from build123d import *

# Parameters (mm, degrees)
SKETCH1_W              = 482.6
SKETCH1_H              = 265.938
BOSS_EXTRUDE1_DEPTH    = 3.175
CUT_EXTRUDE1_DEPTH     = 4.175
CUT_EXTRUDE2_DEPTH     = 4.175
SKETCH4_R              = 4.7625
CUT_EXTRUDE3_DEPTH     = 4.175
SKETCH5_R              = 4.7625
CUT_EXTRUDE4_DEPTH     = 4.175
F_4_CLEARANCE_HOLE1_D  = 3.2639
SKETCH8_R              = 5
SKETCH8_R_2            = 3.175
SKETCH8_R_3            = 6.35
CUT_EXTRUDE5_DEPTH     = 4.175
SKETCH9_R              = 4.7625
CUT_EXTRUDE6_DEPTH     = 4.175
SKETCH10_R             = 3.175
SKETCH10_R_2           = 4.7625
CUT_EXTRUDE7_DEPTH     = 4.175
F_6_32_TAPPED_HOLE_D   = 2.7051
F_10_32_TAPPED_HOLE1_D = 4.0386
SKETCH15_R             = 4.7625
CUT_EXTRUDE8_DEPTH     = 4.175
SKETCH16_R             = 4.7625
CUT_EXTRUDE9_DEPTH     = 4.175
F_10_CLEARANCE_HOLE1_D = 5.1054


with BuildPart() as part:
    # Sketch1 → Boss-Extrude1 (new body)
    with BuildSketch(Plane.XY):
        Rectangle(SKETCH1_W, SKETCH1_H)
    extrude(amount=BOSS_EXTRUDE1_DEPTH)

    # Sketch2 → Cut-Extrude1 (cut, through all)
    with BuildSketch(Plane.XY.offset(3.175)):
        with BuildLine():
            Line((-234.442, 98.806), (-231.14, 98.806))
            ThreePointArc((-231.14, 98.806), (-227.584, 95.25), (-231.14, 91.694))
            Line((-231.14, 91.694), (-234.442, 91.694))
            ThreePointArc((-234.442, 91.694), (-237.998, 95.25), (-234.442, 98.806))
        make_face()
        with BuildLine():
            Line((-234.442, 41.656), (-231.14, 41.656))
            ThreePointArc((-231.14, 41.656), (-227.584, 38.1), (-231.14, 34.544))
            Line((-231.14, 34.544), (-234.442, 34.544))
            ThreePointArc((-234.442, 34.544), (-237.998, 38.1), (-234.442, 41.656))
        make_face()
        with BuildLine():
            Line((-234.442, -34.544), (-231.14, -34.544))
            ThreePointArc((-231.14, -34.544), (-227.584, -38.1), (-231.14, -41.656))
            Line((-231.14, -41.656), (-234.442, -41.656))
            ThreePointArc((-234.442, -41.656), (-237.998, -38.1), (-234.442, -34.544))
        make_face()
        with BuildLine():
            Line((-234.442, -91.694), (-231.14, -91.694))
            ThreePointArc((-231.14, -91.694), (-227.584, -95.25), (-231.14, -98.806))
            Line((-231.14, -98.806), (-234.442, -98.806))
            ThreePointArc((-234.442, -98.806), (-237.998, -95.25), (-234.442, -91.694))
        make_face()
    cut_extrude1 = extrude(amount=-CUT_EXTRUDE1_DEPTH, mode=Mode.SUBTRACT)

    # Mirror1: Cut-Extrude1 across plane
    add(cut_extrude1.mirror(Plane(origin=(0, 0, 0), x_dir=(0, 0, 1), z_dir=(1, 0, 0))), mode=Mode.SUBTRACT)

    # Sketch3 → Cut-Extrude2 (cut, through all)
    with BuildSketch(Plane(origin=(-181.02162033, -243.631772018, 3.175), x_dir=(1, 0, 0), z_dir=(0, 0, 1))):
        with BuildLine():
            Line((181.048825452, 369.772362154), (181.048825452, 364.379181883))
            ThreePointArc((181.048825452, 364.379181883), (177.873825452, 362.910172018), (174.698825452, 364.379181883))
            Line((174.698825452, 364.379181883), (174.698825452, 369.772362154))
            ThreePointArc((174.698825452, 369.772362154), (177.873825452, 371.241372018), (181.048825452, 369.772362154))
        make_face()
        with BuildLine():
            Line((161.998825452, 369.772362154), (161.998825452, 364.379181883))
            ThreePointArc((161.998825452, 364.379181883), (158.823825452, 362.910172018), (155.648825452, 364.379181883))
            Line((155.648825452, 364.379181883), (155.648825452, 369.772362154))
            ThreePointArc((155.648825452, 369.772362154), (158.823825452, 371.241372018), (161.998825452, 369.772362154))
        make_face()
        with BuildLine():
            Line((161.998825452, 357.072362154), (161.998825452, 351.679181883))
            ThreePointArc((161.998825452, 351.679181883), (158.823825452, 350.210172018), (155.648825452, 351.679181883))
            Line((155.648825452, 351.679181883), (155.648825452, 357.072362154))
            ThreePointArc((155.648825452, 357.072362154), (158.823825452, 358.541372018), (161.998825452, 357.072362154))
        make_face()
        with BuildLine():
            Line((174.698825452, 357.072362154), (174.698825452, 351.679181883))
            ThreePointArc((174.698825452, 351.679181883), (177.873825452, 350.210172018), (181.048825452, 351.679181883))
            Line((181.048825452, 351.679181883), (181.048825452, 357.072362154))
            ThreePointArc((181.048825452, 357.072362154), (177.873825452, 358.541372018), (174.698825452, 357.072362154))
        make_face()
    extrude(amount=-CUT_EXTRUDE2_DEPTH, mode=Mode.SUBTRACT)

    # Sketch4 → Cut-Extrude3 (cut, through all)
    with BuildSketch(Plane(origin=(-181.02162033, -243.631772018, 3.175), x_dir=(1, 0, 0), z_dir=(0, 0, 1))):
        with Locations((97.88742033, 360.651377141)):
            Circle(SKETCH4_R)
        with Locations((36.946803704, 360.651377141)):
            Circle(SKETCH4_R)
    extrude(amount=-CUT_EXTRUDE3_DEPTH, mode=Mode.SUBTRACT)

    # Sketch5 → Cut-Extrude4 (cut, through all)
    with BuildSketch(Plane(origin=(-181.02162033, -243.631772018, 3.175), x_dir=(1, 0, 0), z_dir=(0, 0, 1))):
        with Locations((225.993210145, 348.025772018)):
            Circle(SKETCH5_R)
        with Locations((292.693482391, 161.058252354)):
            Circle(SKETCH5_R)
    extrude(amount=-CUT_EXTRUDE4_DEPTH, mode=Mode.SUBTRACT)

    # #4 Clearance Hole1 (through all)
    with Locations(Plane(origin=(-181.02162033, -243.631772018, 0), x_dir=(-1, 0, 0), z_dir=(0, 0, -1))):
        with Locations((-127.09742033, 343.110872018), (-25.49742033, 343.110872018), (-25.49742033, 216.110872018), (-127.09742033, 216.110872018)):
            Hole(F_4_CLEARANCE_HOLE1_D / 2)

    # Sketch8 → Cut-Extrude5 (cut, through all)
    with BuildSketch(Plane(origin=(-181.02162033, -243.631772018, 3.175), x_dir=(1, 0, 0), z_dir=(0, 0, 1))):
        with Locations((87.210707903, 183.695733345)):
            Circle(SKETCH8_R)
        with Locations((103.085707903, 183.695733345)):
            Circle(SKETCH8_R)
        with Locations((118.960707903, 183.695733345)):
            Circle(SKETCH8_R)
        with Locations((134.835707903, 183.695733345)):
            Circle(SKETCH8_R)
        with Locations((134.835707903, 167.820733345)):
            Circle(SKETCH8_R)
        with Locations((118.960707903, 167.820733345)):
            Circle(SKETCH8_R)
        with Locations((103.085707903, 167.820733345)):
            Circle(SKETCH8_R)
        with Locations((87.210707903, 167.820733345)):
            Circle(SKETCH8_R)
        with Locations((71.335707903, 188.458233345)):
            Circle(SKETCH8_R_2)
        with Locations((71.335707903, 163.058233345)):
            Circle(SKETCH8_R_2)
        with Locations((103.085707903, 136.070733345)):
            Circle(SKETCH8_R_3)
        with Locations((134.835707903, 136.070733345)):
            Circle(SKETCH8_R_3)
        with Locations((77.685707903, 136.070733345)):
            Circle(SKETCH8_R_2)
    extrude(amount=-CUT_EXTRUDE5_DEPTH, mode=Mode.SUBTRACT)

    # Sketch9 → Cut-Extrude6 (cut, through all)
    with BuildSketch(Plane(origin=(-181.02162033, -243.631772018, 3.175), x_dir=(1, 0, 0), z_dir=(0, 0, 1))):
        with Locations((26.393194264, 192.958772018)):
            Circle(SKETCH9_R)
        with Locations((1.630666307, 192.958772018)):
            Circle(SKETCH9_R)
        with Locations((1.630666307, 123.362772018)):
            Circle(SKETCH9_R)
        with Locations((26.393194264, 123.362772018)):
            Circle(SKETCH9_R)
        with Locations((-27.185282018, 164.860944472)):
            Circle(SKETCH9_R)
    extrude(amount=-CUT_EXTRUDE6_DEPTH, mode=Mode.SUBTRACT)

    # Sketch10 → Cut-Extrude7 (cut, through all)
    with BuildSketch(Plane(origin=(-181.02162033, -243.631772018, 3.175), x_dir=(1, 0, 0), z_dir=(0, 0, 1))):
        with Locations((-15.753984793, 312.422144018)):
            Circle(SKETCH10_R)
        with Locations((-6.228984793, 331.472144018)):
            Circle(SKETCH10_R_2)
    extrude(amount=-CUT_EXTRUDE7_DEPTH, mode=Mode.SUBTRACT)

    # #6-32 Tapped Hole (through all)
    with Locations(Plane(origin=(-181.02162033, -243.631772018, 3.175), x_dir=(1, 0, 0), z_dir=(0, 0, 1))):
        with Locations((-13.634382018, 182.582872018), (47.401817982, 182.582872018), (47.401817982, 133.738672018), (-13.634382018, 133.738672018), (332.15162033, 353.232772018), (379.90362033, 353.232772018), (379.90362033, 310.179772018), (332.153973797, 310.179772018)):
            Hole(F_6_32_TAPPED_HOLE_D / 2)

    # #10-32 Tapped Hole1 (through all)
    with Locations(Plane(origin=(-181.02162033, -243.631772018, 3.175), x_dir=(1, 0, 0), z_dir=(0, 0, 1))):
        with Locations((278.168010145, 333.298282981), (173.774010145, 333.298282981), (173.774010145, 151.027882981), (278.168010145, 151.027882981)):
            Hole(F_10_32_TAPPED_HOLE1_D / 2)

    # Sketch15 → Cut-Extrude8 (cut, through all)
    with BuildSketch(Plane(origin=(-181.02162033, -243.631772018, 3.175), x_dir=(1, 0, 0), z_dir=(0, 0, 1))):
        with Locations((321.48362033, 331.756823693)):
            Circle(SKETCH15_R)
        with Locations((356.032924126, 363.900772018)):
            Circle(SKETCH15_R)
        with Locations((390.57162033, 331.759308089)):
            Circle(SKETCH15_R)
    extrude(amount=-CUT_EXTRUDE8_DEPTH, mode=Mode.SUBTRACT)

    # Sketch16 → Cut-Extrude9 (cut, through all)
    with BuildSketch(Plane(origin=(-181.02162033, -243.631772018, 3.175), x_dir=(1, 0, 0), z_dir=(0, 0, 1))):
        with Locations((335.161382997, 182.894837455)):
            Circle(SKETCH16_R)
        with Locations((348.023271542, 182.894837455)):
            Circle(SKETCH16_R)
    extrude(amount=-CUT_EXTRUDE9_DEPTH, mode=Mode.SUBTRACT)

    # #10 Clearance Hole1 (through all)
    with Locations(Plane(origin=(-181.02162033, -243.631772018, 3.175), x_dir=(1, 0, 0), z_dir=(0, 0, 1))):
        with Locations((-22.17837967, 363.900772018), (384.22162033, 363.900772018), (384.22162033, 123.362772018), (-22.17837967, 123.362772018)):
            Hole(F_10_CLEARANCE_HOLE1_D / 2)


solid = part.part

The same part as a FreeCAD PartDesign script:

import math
import FreeCAD as App
import Part
import Sketcher

V = App.Vector
Q = App.Units.Quantity

doc = App.newDocument("Part")
params = doc.addObject("Spreadsheet::Sheet", "Params")
for row, (alias, value) in enumerate([
    ("sketch1_width", "19 in"),
    ("sketch1_height", "10.47 in"),
    ("pad1_length", "0.125 in"),
    ("sketch2_radius", "0.14 in"),
    ("sketch2_width", "0.13 in"),
    ("sketch3_radius", "0.164 in"),
    ("sketch4_diameter", "0.375 in"),
    ("sketch5_diameter", "0.375 in"),
    ("hole_diameter", "0.1285 in"),
    ("sketch7_diameter", "0.5 in"),
    ("sketch7_diameter2", "0.25 in"),
    ("sketch8_diameter", "0.375 in"),
    ("sketch9_diameter", "0.25 in"),
    ("sketch9_diameter2", "0.375 in"),
    ("hole2_diameter", "0.1065 in"),
    ("sketch11_diameter", "0.159 in"),
    ("hole3_diameter", "0.159 in"),
    ("sketch12_diameter", "0.375 in"),
    ("sketch13_diameter", "0.375 in"),
    ("sketch14_diameter", "0.201 in"),
    ("hole4_diameter", "0.201 in"),
], start=1):
    params.set(f"A{row}", alias)
    params.set(f"B{row}", "=" + value)
    params.setAlias(f"B{row}", alias)

body = doc.addObject("PartDesign::Body", "Body")

# Sketch on XY plane
sketch1 = body.newObject("Sketcher::SketchObject", "Sketch")
sketch1.AttachmentSupport = (doc.getObject("XY_Plane"), [""])
sketch1.MapMode = "FlatFace"
sketch1.addGeometry([
    Part.LineSegment(V(-241, 133, 0), V(-241, -133, 0)),
    Part.LineSegment(V(-241, -133, 0), V(241, -133, 0)),
    Part.LineSegment(V(241, -133, 0), V(241, 133, 0)),
    Part.LineSegment(V(241, 133, 0), V(-241, 133, 0)),
], False)
sketch1.addConstraint([
    Sketcher.Constraint("Coincident", 0, 2, 1, 1),
    Sketcher.Constraint("Coincident", 1, 2, 2, 1),
    Sketcher.Constraint("Coincident", 2, 2, 3, 1),
    Sketcher.Constraint("Coincident", 3, 2, 0, 1),
    Sketcher.Constraint("Vertical", 0),
    Sketcher.Constraint("Horizontal", 1),
    Sketcher.Constraint("Vertical", 2),
    Sketcher.Constraint("Horizontal", 3),
    Sketcher.Constraint("Symmetric", 0, 2, 2, 2, -1, 1),
    Sketcher.Constraint("DistanceX", 1, 1, 1, 2, Q("19 in")),
    Sketcher.Constraint("DistanceY", 0, 2, 0, 1, Q("10.47 in")),
])
sketch1.setExpression("Constraints[9]", "Params.sketch1_width")
sketch1.setExpression("Constraints[10]", "Params.sketch1_height")
pad1 = body.newObject("PartDesign::Pad", "Pad")
pad1.Profile = sketch1
pad1.setExpression("Length", "Params.pad1_length")

# Sketch on XY plane
sketch2 = body.newObject("Sketcher::SketchObject", "Sketch001")
sketch2.AttachmentSupport = (doc.getObject("XY_Plane"), [""])
sketch2.MapMode = "FlatFace"
sketch2.AttachmentOffset = App.Placement(V(0, 0, 0.125 * 25.4), App.Rotation())
sketch2.addGeometry([
    Part.LineSegment(V(-231.1, 98.8, 0), V(-234.4, 98.8, 0)),  # 0
    Part.ArcOfCircle(Part.Circle(V(-234.4, 95.2, 0), V(0, 0, 1), 3.6), math.radians(90), math.radians(270)),  # 1
    Part.LineSegment(V(-234.4, 91.7, 0), V(-231.1, 91.7, 0)),  # 2
    Part.ArcOfCircle(Part.Circle(V(-231.1, 95.2, 0), V(0, 0, 1), 3.6), math.radians(-90), math.radians(90)),  # 3
    Part.LineSegment(V(-231.1, 41.7, 0), V(-234.4, 41.7, 0)),  # 4
    Part.ArcOfCircle(Part.Circle(V(-234.4, 38.1, 0), V(0, 0, 1), 3.6), math.radians(90), math.radians(270)),  # 5
    Part.LineSegment(V(-234.4, 34.5, 0), V(-231.1, 34.5, 0)),  # 6
    Part.ArcOfCircle(Part.Circle(V(-231.1, 38.1, 0), V(0, 0, 1), 3.6), math.radians(-90), math.radians(90)),  # 7
    Part.LineSegment(V(-231.1, -34.5, 0), V(-234.4, -34.5, 0)),  # 8
    Part.ArcOfCircle(Part.Circle(V(-234.4, -38.1, 0), V(0, 0, 1), 3.6), math.radians(90), math.radians(270)),  # 9
    Part.LineSegment(V(-234.4, -41.7, 0), V(-231.1, -41.7, 0)),  # 10
    Part.ArcOfCircle(Part.Circle(V(-231.1, -38.1, 0), V(0, 0, 1), 3.6), math.radians(-90), math.radians(90)),  # 11
    Part.LineSegment(V(-231.1, -91.7, 0), V(-234.4, -91.7, 0)),  # 12
    Part.ArcOfCircle(Part.Circle(V(-234.4, -95.2, 0), V(0, 0, 1), 3.6), math.radians(90), math.radians(270)),  # 13
    Part.LineSegment(V(-234.4, -98.8, 0), V(-231.1, -98.8, 0)),  # 14
    Part.ArcOfCircle(Part.Circle(V(-231.1, -95.2, 0), V(0, 0, 1), 3.6), math.radians(-90), math.radians(90)),  # 15
], False)
sketch2.addConstraint([
    Sketcher.Constraint("Tangent", 0, 2, 1, 1),
    Sketcher.Constraint("Tangent", 1, 2, 2, 1),
    Sketcher.Constraint("Tangent", 2, 2, 3, 1),
    Sketcher.Constraint("Tangent", 3, 2, 0, 1),
    Sketcher.Constraint("Tangent", 4, 2, 5, 1),
    Sketcher.Constraint("Tangent", 5, 2, 6, 1),
    Sketcher.Constraint("Tangent", 6, 2, 7, 1),
    Sketcher.Constraint("Tangent", 7, 2, 4, 1),
    Sketcher.Constraint("Tangent", 8, 2, 9, 1),
    Sketcher.Constraint("Tangent", 9, 2, 10, 1),
    Sketcher.Constraint("Tangent", 10, 2, 11, 1),
    Sketcher.Constraint("Tangent", 11, 2, 8, 1),
    Sketcher.Constraint("Tangent", 12, 2, 13, 1),
    Sketcher.Constraint("Tangent", 13, 2, 14, 1),
    Sketcher.Constraint("Tangent", 14, 2, 15, 1),
    Sketcher.Constraint("Tangent", 15, 2, 12, 1),
    Sketcher.Constraint("Horizontal", 0),
    Sketcher.Constraint("Horizontal", 2),
    Sketcher.Constraint("Horizontal", 4),
    Sketcher.Constraint("Horizontal", 6),
    Sketcher.Constraint("Horizontal", 8),
    Sketcher.Constraint("Horizontal", 10),
    Sketcher.Constraint("Horizontal", 12),
    Sketcher.Constraint("Horizontal", 14),
    Sketcher.Constraint("Equal", 3, 5),
    Sketcher.Constraint("Equal", 7, 9),
    Sketcher.Constraint("Equal", 11, 13),
    Sketcher.Constraint("Symmetric", 5, 3, 9, 3, -1),
    Sketcher.Constraint("Symmetric", 1, 3, 13, 3, -1),
    Sketcher.Constraint("Vertical", 1, 3, 5, 3),
    Sketcher.Constraint("Vertical", 3, 3, 7, 3),
    Sketcher.Constraint("Vertical", 7, 3, 11, 3),
    Sketcher.Constraint("Vertical", 11, 3, 15, 3),
    Sketcher.Constraint("Radius", 1, Q("0.14 in")),
    Sketcher.Constraint("DistanceY", 9, 3, 5, 3, Q("3 in")),
    Sketcher.Constraint("DistanceX", 0, 2, 0, 1, Q("0.13 in")),
    Sketcher.Constraint("DistanceX", 3, 3, -1, 1, Q("9.1 in")),
    Sketcher.Constraint("DistanceY", 13, 3, 1, 3, Q("7.5 in")),
])
sketch2.setExpression("Constraints[33]", "Params.sketch2_radius")
sketch2.setExpression("Constraints[35]", "Params.sketch2_width")
pocket1 = body.newObject("PartDesign::Pocket", "Pocket")
pocket1.Profile = sketch2
pocket1.Type = "ThroughAll"
doc.recompute()

mirrored = body.newObject("PartDesign::Mirrored", "Mirrored")
mirrored.Originals = [pocket1]
mirrored.MirrorPlane = (doc.getObject("YZ_Plane"), [""])
body.Tip = mirrored

# Sketch on XY plane
sketch3 = body.newObject("Sketcher::SketchObject", "Sketch002")
sketch3.AttachmentSupport = (doc.getObject("XY_Plane"), [""])
sketch3.MapMode = "FlatFace"
sketch3.AttachmentOffset = App.Placement(V(0, 0, 0.125 * 25.4), App.Rotation())
sketch3.addGeometry([
    Part.LineSegment(V(0, 120.7, 0), V(0, 126.1, 0)),  # 0
    Part.ArcOfCircle(Part.Circle(V(-3.1, 123.4, 0), V(0, 0, 1), 4.2), math.radians(40), math.radians(140)),  # 1
    Part.LineSegment(V(-6.3, 126.1, 0), V(-6.3, 120.7, 0)),  # 2
    Part.ArcOfCircle(Part.Circle(V(-3.1, 123.4, 0), V(0, 0, 1), 4.2), math.radians(-140), math.radians(-40)),  # 3
    Part.LineSegment(V(-19, 120.7, 0), V(-19, 126.1, 0)),  # 4
    Part.ArcOfCircle(Part.Circle(V(-22.2, 123.4, 0), V(0, 0, 1), 4.2), math.radians(40), math.radians(140)),  # 5
    Part.LineSegment(V(-25.4, 126.1, 0), V(-25.4, 120.7, 0)),  # 6
    Part.ArcOfCircle(Part.Circle(V(-22.2, 123.4, 0), V(0, 0, 1), 4.2), math.radians(-140), math.radians(-40)),  # 7
    Part.LineSegment(V(-19, 108, 0), V(-19, 113.4, 0)),  # 8
    Part.ArcOfCircle(Part.Circle(V(-22.2, 110.7, 0), V(0, 0, 1), 4.2), math.radians(40), math.radians(140)),  # 9
    Part.LineSegment(V(-25.4, 113.4, 0), V(-25.4, 108, 0)),  # 10
    Part.ArcOfCircle(Part.Circle(V(-22.2, 110.7, 0), V(0, 0, 1), 4.2), math.radians(-140), math.radians(-40)),  # 11
    Part.LineSegment(V(-6.3, 113.4, 0), V(-6.3, 108, 0)),  # 12
    Part.ArcOfCircle(Part.Circle(V(-3.1, 110.7, 0), V(0, 0, 1), 4.2), math.radians(-140), math.radians(-40)),  # 13
    Part.LineSegment(V(0, 108, 0), V(0, 113.4, 0)),  # 14
    Part.ArcOfCircle(Part.Circle(V(-3.1, 110.7, 0), V(0, 0, 1), 4.2), math.radians(40), math.radians(140)),  # 15
], False)
sketch3.addConstraint([
    Sketcher.Constraint("Coincident", 0, 2, 1, 1),
    Sketcher.Constraint("Coincident", 1, 2, 2, 1),
    Sketcher.Constraint("Coincident", 2, 2, 3, 1),
    Sketcher.Constraint("Coincident", 3, 2, 0, 1),
    Sketcher.Constraint("Coincident", 4, 2, 5, 1),
    Sketcher.Constraint("Coincident", 5, 2, 6, 1),
    Sketcher.Constraint("Coincident", 6, 2, 7, 1),
    Sketcher.Constraint("Coincident", 7, 2, 4, 1),
    Sketcher.Constraint("Coincident", 8, 2, 9, 1),
    Sketcher.Constraint("Coincident", 9, 2, 10, 1),
    Sketcher.Constraint("Coincident", 10, 2, 11, 1),
    Sketcher.Constraint("Coincident", 11, 2, 8, 1),
    Sketcher.Constraint("Coincident", 12, 2, 13, 1),
    Sketcher.Constraint("Coincident", 13, 2, 14, 1),
    Sketcher.Constraint("Coincident", 14, 2, 15, 1),
    Sketcher.Constraint("Coincident", 15, 2, 12, 1),
    Sketcher.Constraint("Vertical", 0),
    Sketcher.Constraint("Vertical", 2),
    Sketcher.Constraint("Vertical", 4),
    Sketcher.Constraint("Vertical", 6),
    Sketcher.Constraint("Vertical", 8),
    Sketcher.Constraint("Vertical", 10),
    Sketcher.Constraint("Vertical", 12),
    Sketcher.Constraint("Vertical", 14),
    Sketcher.Constraint("Coincident", 3, 3, 1, 3),
    Sketcher.Constraint("Coincident", 7, 3, 5, 3),
    Sketcher.Constraint("Coincident", 11, 3, 9, 3),
    Sketcher.Constraint("Coincident", 15, 3, 13, 3),
    Sketcher.Constraint("Equal", 1, 3),
    Sketcher.Constraint("Equal", 3, 5),
    Sketcher.Constraint("Equal", 5, 7),
    Sketcher.Constraint("Equal", 7, 9),
    Sketcher.Constraint("Equal", 9, 11),
    Sketcher.Constraint("Equal", 11, 13),
    Sketcher.Constraint("Equal", 13, 15),
    Sketcher.Constraint("Horizontal", 3, 3, 5, 3),
    Sketcher.Constraint("Horizontal", 11, 3, 13, 3),
    Sketcher.Constraint("Horizontal", 0, 2, 1, 2),
    Sketcher.Constraint("Horizontal", 1, 2, 4, 2),
    Sketcher.Constraint("Horizontal", 4, 2, 5, 2),
    Sketcher.Constraint("Horizontal", 8, 2, 9, 2),
    Sketcher.Constraint("Horizontal", 11, 2, 12, 2),
    Sketcher.Constraint("Horizontal", 12, 2, 13, 2),
    Sketcher.Constraint("Vertical", 7, 3, 9, 3),
    Sketcher.Constraint("Vertical", 3, 3, 13, 3),
    Sketcher.Constraint("Vertical", 7, 2, 8, 2),
    Sketcher.Constraint("Radius", 1, Q("0.164 in")),
    Sketcher.Constraint("DistanceY", 9, 3, 5, 3, Q("0.5 in")),
    Sketcher.Constraint("DistanceX", 4, 2, 1, 2, Q("0.5 in")),
    Sketcher.Constraint("DistanceY", -1, 1, 1, 3, Q("4.86 in")),
    Sketcher.Constraint("DistanceX", 5, 3, 1, 3, Q("0.75 in")),
    Sketcher.Constraint("DistanceX", 1, 3, -1, 1, Q("3.147795 mm")),
])
sketch3.setExpression("Constraints[46]", "Params.sketch3_radius")
pocket2 = body.newObject("PartDesign::Pocket", "Pocket001")
pocket2.Profile = sketch3
pocket2.Type = "ThroughAll"

# Sketch on XY plane
sketch4 = body.newObject("Sketcher::SketchObject", "Sketch003")
sketch4.AttachmentSupport = (doc.getObject("XY_Plane"), [""])
sketch4.MapMode = "FlatFace"
sketch4.AttachmentOffset = App.Placement(V(0, 0, 0.125 * 25.4), App.Rotation())
sketch4.addGeometry([
    Part.Circle(V(-83.1, 117, 0), V(0, 0, 1), 4.8),
    Part.Circle(V(-144.1, 117, 0), V(0, 0, 1), 4.8),
], False)
sketch4.addConstraint([
    Sketcher.Constraint("Equal", 0, 1),
    Sketcher.Constraint("Horizontal", 0, 3, 1, 3),
    Sketcher.Constraint("Diameter", 0, Q("0.375 in")),
    Sketcher.Constraint("DistanceX", 0, 3, -1, 1, Q("3.273 in")),
    Sketcher.Constraint("DistanceY", -1, 1, 0, 3, Q("117.019605 mm")),
    Sketcher.Constraint("DistanceX", 1, 3, -1, 1, Q("144.074817 mm")),
])
sketch4.setExpression("Constraints[2]", "Params.sketch4_diameter")
pocket3 = body.newObject("PartDesign::Pocket", "Pocket002")
pocket3.Profile = sketch4
pocket3.Type = "ThroughAll"

# Sketch on XY plane
sketch5 = body.newObject("Sketcher::SketchObject", "Sketch004")
sketch5.AttachmentSupport = (doc.getObject("XY_Plane"), [""])
sketch5.MapMode = "FlatFace"
sketch5.AttachmentOffset = App.Placement(V(0, 0, 0.125 * 25.4), App.Rotation())
sketch5.addGeometry([
    Part.Circle(V(45, 104.4, 0), V(0, 0, 1), 4.8),
    Part.Circle(V(111.7, -82.6, 0), V(0, 0, 1), 4.8),
], False)
sketch5.addConstraint([
    Sketcher.Constraint("Equal", 0, 1),
    Sketcher.Constraint("Diameter", 0, Q("0.375 in")),
    Sketcher.Constraint("DistanceY", -1, 1, 0, 3, Q("4.11 in")),
    Sketcher.Constraint("DistanceX", -1, 1, 0, 3, Q("44.97159 mm")),
    Sketcher.Constraint("DistanceY", 1, 3, -1, 1, Q("82.57352 mm")),
    Sketcher.Constraint("DistanceX", -1, 1, 1, 3, Q("111.671862 mm")),
])
sketch5.setExpression("Constraints[1]", "Params.sketch5_diameter")
pocket4 = body.newObject("PartDesign::Pocket", "Pocket003")
pocket4.Profile = sketch5
pocket4.Type = "ThroughAll"

# Sketch on XY plane
sketch6 = body.newObject("Sketcher::SketchObject", "Sketch005")
sketch6.AttachmentSupport = (doc.getObject("XY_Plane"), [""])
sketch6.MapMode = "FlatFace"
sketch6.addGeometry([
    Part.Circle(V(-53.9, 99.5, 0), V(0, 0, 1), 1.6),
    Part.Circle(V(-155.5, 99.5, 0), V(0, 0, 1), 1.6),
    Part.Circle(V(-155.5, -27.5, 0), V(0, 0, 1), 1.6),
    Part.Circle(V(-53.9, -27.5, 0), V(0, 0, 1), 1.6),
], False)
sketch6.addConstraint([
    Sketcher.Constraint("Equal", 0, 1),
    Sketcher.Constraint("Equal", 1, 2),
    Sketcher.Constraint("Equal", 2, 3),
    Sketcher.Constraint("Horizontal", 0, 3, 1, 3),
    Sketcher.Constraint("Horizontal", 2, 3, 3, 3),
    Sketcher.Constraint("Vertical", 1, 3, 2, 3),
    Sketcher.Constraint("Vertical", 0, 3, 3, 3),
    Sketcher.Constraint("DistanceX", 1, 3, 0, 3, Q("4 in")),
    Sketcher.Constraint("DistanceY", 2, 3, 1, 3, Q("5 in")),
    Sketcher.Constraint("Diameter", 0, Q("0.1285 in")),
    Sketcher.Constraint("DistanceX", 0, 3, -1, 1, Q("2.123 in")),
    Sketcher.Constraint("DistanceY", -1, 1, 0, 3, Q("3.9165 in")),
])
doc.recompute()
hole = body.newObject("PartDesign::Hole", "Hole")
hole.Profile = sketch6
hole.ThreadType = "None"
hole.setExpression("Diameter", "Params.hole_diameter")
hole.DepthType = "ThroughAll"
hole.Reversed = True

# Sketch on XY plane
sketch7 = body.newObject("Sketcher::SketchObject", "Sketch006")
sketch7.AttachmentSupport = (doc.getObject("XY_Plane"), [""])
sketch7.MapMode = "FlatFace"
sketch7.AttachmentOffset = App.Placement(V(0, 0, 0.125 * 25.4), App.Rotation())
sketch7.addGeometry([
    Part.Circle(V(-93.8, -59.9, 0), V(0, 0, 1), 5),  # 0
    Part.Circle(V(-77.9, -59.9, 0), V(0, 0, 1), 5),  # 1
    Part.Circle(V(-62.1, -59.9, 0), V(0, 0, 1), 5),  # 2
    Part.Circle(V(-46.2, -59.9, 0), V(0, 0, 1), 5),  # 3
    Part.Circle(V(-46.2, -75.8, 0), V(0, 0, 1), 5),  # 4
    Part.Circle(V(-62.1, -75.8, 0), V(0, 0, 1), 5),  # 5
    Part.Circle(V(-77.9, -75.8, 0), V(0, 0, 1), 5),  # 6
    Part.Circle(V(-93.8, -75.8, 0), V(0, 0, 1), 5),  # 7
    Part.Circle(V(-109.7, -55.2, 0), V(0, 0, 1), 3.2),  # 8
    Part.Circle(V(-109.7, -80.6, 0), V(0, 0, 1), 3.2),  # 9
    Part.Circle(V(-77.9, -107.6, 0), V(0, 0, 1), 6.3),  # 10
    Part.Circle(V(-46.2, -107.6, 0), V(0, 0, 1), 6.3),  # 11
    Part.Circle(V(-103.3, -107.6, 0), V(0, 0, 1), 3.2),  # 12
], False)
sketch7.addConstraint([
    Sketcher.Constraint("Equal", 0, 1),
    Sketcher.Constraint("Equal", 1, 2),
    Sketcher.Constraint("Equal", 2, 3),
    Sketcher.Constraint("Equal", 3, 4),
    Sketcher.Constraint("Equal", 4, 5),
    Sketcher.Constraint("Equal", 5, 6),
    Sketcher.Constraint("Equal", 6, 7),
    Sketcher.Constraint("Equal", 8, 9),
    Sketcher.Constraint("Equal", 10, 11),
    Sketcher.Constraint("Equal", 9, 12),
    Sketcher.Constraint("Horizontal", 0, 3, 1, 3),
    Sketcher.Constraint("Horizontal", 1, 3, 2, 3),
    Sketcher.Constraint("Horizontal", 2, 3, 3, 3),
    Sketcher.Constraint("Horizontal", 4, 3, 5, 3),
    Sketcher.Constraint("Horizontal", 5, 3, 6, 3),
    Sketcher.Constraint("Horizontal", 6, 3, 7, 3),
    Sketcher.Constraint("Horizontal", 10, 3, 11, 3),
    Sketcher.Constraint("Horizontal", 11, 3, 12, 3),
    Sketcher.Constraint("Vertical", 3, 3, 4, 3),
    Sketcher.Constraint("Vertical", 2, 3, 5, 3),
    Sketcher.Constraint("Vertical", 1, 3, 6, 3),
    Sketcher.Constraint("Vertical", 0, 3, 7, 3),
    Sketcher.Constraint("Vertical", 8, 3, 9, 3),
    Sketcher.Constraint("Vertical", 6, 3, 10, 3),
    Sketcher.Constraint("Vertical", 4, 3, 11, 3),
    Sketcher.Constraint("Diameter", 10, Q("0.5 in")),
    Sketcher.Constraint("Diameter", 8, Q("0.25 in")),
    Sketcher.Constraint("DistanceY", 9, 3, 8, 3, Q("1 in")),
    Sketcher.Constraint("DistanceX", 12, 3, 10, 3, Q("1 in")),
    Sketcher.Constraint("Diameter", 0, Q("10 mm")),
    Sketcher.Constraint("DistanceX", 0, 3, 2, 3, Q("1.25 in")),
    Sketcher.Constraint("DistanceX", 1, 3, 3, 3, Q("1.25 in")),
    Sketcher.Constraint("DistanceX", 8, 3, 1, 3, Q("1.25 in")),
    Sketcher.Constraint("DistanceY", 10, 3, 6, 3, Q("1.25 in")),
    Sketcher.Constraint("DistanceX", 0, 3, 1, 3, Q("0.625 in")),
    Sketcher.Constraint("DistanceY", 4, 3, 3, 3, Q("0.625 in")),
    Sketcher.Constraint("DistanceY", 0, 3, 8, 3, Q("0.1875 in")),
    Sketcher.Constraint("DistanceY", 0, 3, -1, 1, Q("59.936039 mm")),
    Sketcher.Constraint("DistanceX", 0, 3, -1, 1, Q("93.810912 mm")),
])
sketch7.setExpression("Constraints[25]", "Params.sketch7_diameter")
sketch7.setExpression("Constraints[26]", "Params.sketch7_diameter2")
pocket5 = body.newObject("PartDesign::Pocket", "Pocket004")
pocket5.Profile = sketch7
pocket5.Type = "ThroughAll"

# Sketch on XY plane
sketch8 = body.newObject("Sketcher::SketchObject", "Sketch007")
sketch8.AttachmentSupport = (doc.getObject("XY_Plane"), [""])
sketch8.MapMode = "FlatFace"
sketch8.AttachmentOffset = App.Placement(V(0, 0, 0.125 * 25.4), App.Rotation())
sketch8.addGeometry([
    Part.Circle(V(-154.6, -50.7, 0), V(0, 0, 1), 4.8),  # 0
    Part.Circle(V(-179.4, -50.7, 0), V(0, 0, 1), 4.8),  # 1
    Part.Circle(V(-179.4, -120.3, 0), V(0, 0, 1), 4.8),  # 2
    Part.Circle(V(-154.6, -120.3, 0), V(0, 0, 1), 4.8),  # 3
    Part.Circle(V(-208.2, -78.8, 0), V(0, 0, 1), 4.8),  # 4
], False)
sketch8.addConstraint([
    Sketcher.Constraint("Equal", 0, 1),
    Sketcher.Constraint("Equal", 1, 2),
    Sketcher.Constraint("Equal", 2, 3),
    Sketcher.Constraint("Equal", 3, 4),
    Sketcher.Constraint("Horizontal", 0, 3, 1, 3),
    Sketcher.Constraint("Horizontal", 2, 3, 3, 3),
    Sketcher.Constraint("Vertical", 1, 3, 2, 3),
    Sketcher.Constraint("Vertical", 0, 3, 3, 3),
    Sketcher.Constraint("Diameter", 0, Q("0.375 in")),
    Sketcher.Constraint("DistanceY", 2, 3, 1, 3, Q("2.74 in")),
    Sketcher.Constraint("DistanceY", 0, 3, -1, 1, Q("1.995 in")),
    Sketcher.Constraint("DistanceX", 4, 3, 1, 3, Q("28.815948 mm")),
    Sketcher.Constraint("DistanceX", 0, 3, -1, 1, Q("154.628426 mm")),
    Sketcher.Constraint("DistanceX", 1, 3, -1, 1, Q("179.390954 mm")),
    Sketcher.Constraint("DistanceY", 4, 3, -1, 1, Q("78.770828 mm")),
])
sketch8.setExpression("Constraints[8]", "Params.sketch8_diameter")
pocket6 = body.newObject("PartDesign::Pocket", "Pocket005")
pocket6.Profile = sketch8
pocket6.Type = "ThroughAll"

# Sketch on XY plane
sketch9 = body.newObject("Sketcher::SketchObject", "Sketch008")
sketch9.AttachmentSupport = (doc.getObject("XY_Plane"), [""])
sketch9.MapMode = "FlatFace"
sketch9.AttachmentOffset = App.Placement(V(0, 0, 0.125 * 25.4), App.Rotation())
sketch9.addGeometry([
    Part.Circle(V(-196.8, 68.8, 0), V(0, 0, 1), 3.2),
    Part.Circle(V(-187.3, 87.8, 0), V(0, 0, 1), 4.8),
], False)
sketch9.addConstraint([
    Sketcher.Constraint("Diameter", 0, Q("0.25 in")),
    Sketcher.Constraint("Diameter", 1, Q("0.375 in")),
    Sketcher.Constraint("DistanceY", 0, 3, 1, 3, Q("0.75 in")),
    Sketcher.Constraint("DistanceX", 0, 3, 1, 3, Q("0.375 in")),
    Sketcher.Constraint("DistanceX", 0, 3, -1, 1, Q("196.775605 mm")),
    Sketcher.Constraint("DistanceY", -1, 1, 0, 3, Q("68.790372 mm")),
])
sketch9.setExpression("Constraints[0]", "Params.sketch9_diameter")
sketch9.setExpression("Constraints[1]", "Params.sketch9_diameter2")
pocket7 = body.newObject("PartDesign::Pocket", "Pocket006")
pocket7.Profile = sketch9
pocket7.Type = "ThroughAll"

# Sketch on XY plane
sketch10 = body.newObject("Sketcher::SketchObject", "Sketch009")
sketch10.AttachmentSupport = (doc.getObject("XY_Plane"), [""])
sketch10.MapMode = "FlatFace"
sketch10.AttachmentOffset = App.Placement(V(0, 0, 0.125 * 25.4), App.Rotation())
sketch10.addGeometry([
    Part.Circle(V(-194.7, -61, 0), V(0, 0, 1), 1.4),  # 0
    Part.Circle(V(-133.6, -61, 0), V(0, 0, 1), 1.4),  # 1
    Part.Circle(V(-133.6, -109.9, 0), V(0, 0, 1), 1.4),  # 2
    Part.Circle(V(-194.7, -109.9, 0), V(0, 0, 1), 1.4),  # 3
    Part.Circle(V(151.1, 109.6, 0), V(0, 0, 1), 1.4),  # 4
    Part.Circle(V(198.9, 109.6, 0), V(0, 0, 1), 1.4),  # 5
    Part.Circle(V(198.9, 66.5, 0), V(0, 0, 1), 1.4),  # 6
    Part.Circle(V(151.1, 66.5, 0), V(0, 0, 1), 1.4),  # 7
], False)
sketch10.addConstraint([
    Sketcher.Constraint("Equal", 0, 1),
    Sketcher.Constraint("Equal", 1, 2),
    Sketcher.Constraint("Equal", 2, 3),
    Sketcher.Constraint("Equal", 3, 4),
    Sketcher.Constraint("Equal", 4, 5),
    Sketcher.Constraint("Equal", 5, 6),
    Sketcher.Constraint("Equal", 6, 7),
    Sketcher.Constraint("Horizontal", 0, 3, 1, 3),
    Sketcher.Constraint("Horizontal", 2, 3, 3, 3),
    Sketcher.Constraint("Horizontal", 4, 3, 5, 3),
    Sketcher.Constraint("Horizontal", 6, 3, 7, 3),
    Sketcher.Constraint("Vertical", 1, 3, 2, 3),
    Sketcher.Constraint("Vertical", 0, 3, 3, 3),
    Sketcher.Constraint("Vertical", 5, 3, 6, 3),
    Sketcher.Constraint("Diameter", 0, Q("0.1065 in")),
    Sketcher.Constraint("DistanceX", -1, 1, 4, 3, Q("5.95 in")),
    Sketcher.Constraint("DistanceX", -1, 1, 5, 3, Q("7.83 in")),
    Sketcher.Constraint("DistanceY", -1, 1, 6, 3, Q("2.62 in")),
    Sketcher.Constraint("DistanceY", -1, 1, 4, 3, Q("4.315 in")),
    Sketcher.Constraint("DistanceX", 0, 3, 1, 3, Q("2.403 in")),
    Sketcher.Constraint("DistanceY", 2, 3, 1, 3, Q("1.923 in")),
    Sketcher.Constraint("DistanceY", 0, 3, -1, 1, Q("2.4035 in")),
    Sketcher.Constraint("DistanceX", 0, 3, -1, 1, Q("194.656002 mm")),
    Sketcher.Constraint("DistanceX", -1, 1, 7, 3, Q("151.132353 mm")),
])
doc.recompute()
hole2 = body.newObject("PartDesign::Hole", "Hole001")
hole2.Profile = sketch10
hole2.ThreadType = "None"
hole2.setExpression("Diameter", "Params.hole2_diameter")
hole2.DepthType = "ThroughAll"

# Sketch on XY plane
sketch11 = body.newObject("Sketcher::SketchObject", "Sketch010")
sketch11.AttachmentSupport = (doc.getObject("XY_Plane"), [""])
sketch11.MapMode = "FlatFace"
sketch11.AttachmentOffset = App.Placement(V(0, 0, 0.125 * 25.4), App.Rotation())
sketch11.addGeometry([
    Part.Circle(V(97.1, 89.7, 0), V(0, 0, 1), 2),
    Part.Circle(V(-7.2, 89.7, 0), V(0, 0, 1), 2),
    Part.Circle(V(-7.2, -92.6, 0), V(0, 0, 1), 2),
    Part.Circle(V(97.1, -92.6, 0), V(0, 0, 1), 2),
], False)
sketch11.addConstraint([
    Sketcher.Constraint("Equal", 0, 1),
    Sketcher.Constraint("Equal", 1, 2),
    Sketcher.Constraint("Equal", 2, 3),
    Sketcher.Constraint("Horizontal", 0, 3, 1, 3),
    Sketcher.Constraint("Horizontal", 2, 3, 3, 3),
    Sketcher.Constraint("Vertical", 1, 3, 2, 3),
    Sketcher.Constraint("Vertical", 0, 3, 3, 3),
    Sketcher.Constraint("Diameter", 0, Q("0.159 in")),
    Sketcher.Constraint("DistanceX", 1, 3, 0, 3, Q("4.11 in")),
    Sketcher.Constraint("DistanceY", 2, 3, 1, 3, Q("7.176 in")),
    Sketcher.Constraint("DistanceX", -1, 1, 0, 3, Q("97.14639 mm")),
    Sketcher.Constraint("DistanceY", -1, 1, 0, 3, Q("89.666511 mm")),
])
sketch11.setExpression("Constraints[7]", "Params.sketch11_diameter")
doc.recompute()
hole3 = body.newObject("PartDesign::Hole", "Hole002")
hole3.Profile = sketch11
hole3.ThreadType = "None"
hole3.setExpression("Diameter", "Params.hole3_diameter")
hole3.DepthType = "ThroughAll"

# Sketch on XY plane
sketch12 = body.newObject("Sketcher::SketchObject", "Sketch011")
sketch12.AttachmentSupport = (doc.getObject("XY_Plane"), [""])
sketch12.MapMode = "FlatFace"
sketch12.AttachmentOffset = App.Placement(V(0, 0, 0.125 * 25.4), App.Rotation())
sketch12.addGeometry([
    Part.Circle(V(140.5, 88.1, 0), V(0, 0, 1), 4.8),
    Part.Circle(V(175, 120.3, 0), V(0, 0, 1), 4.8),
    Part.Circle(V(209.6, 88.1, 0), V(0, 0, 1), 4.8),
], False)
sketch12.addConstraint([
    Sketcher.Constraint("Equal", 0, 1),
    Sketcher.Constraint("Equal", 1, 2),
    Sketcher.Constraint("Diameter", 0, Q("0.375 in")),
    Sketcher.Constraint("DistanceX", -1, 1, 0, 3, Q("5.53 in")),
    Sketcher.Constraint("DistanceX", -1, 1, 2, 3, Q("8.25 in")),
    Sketcher.Constraint("DistanceY", -1, 1, 1, 3, Q("4.735 in")),
    Sketcher.Constraint("DistanceY", -1, 1, 0, 3, Q("88.125052 mm")),
    Sketcher.Constraint("DistanceX", -1, 1, 1, 3, Q("175.011304 mm")),
    Sketcher.Constraint("DistanceY", -1, 1, 2, 3, Q("88.127536 mm")),
])
sketch12.setExpression("Constraints[2]", "Params.sketch12_diameter")
pocket8 = body.newObject("PartDesign::Pocket", "Pocket007")
pocket8.Profile = sketch12
pocket8.Type = "ThroughAll"

# Sketch on XY plane
sketch13 = body.newObject("Sketcher::SketchObject", "Sketch012")
sketch13.AttachmentSupport = (doc.getObject("XY_Plane"), [""])
sketch13.MapMode = "FlatFace"
sketch13.AttachmentOffset = App.Placement(V(0, 0, 0.125 * 25.4), App.Rotation())
sketch13.addGeometry([
    Part.Circle(V(154.1, -60.7, 0), V(0, 0, 1), 4.8),
    Part.Circle(V(167, -60.7, 0), V(0, 0, 1), 4.8),
], False)
sketch13.addConstraint([
    Sketcher.Constraint("Equal", 0, 1),
    Sketcher.Constraint("Horizontal", 0, 3, 1, 3),
    Sketcher.Constraint("Diameter", 0, Q("0.375 in")),
    Sketcher.Constraint("DistanceX", -1, 1, 1, 3, Q("167.001651 mm")),
    Sketcher.Constraint("DistanceX", 0, 3, 1, 3, Q("12.861889 mm")),
    Sketcher.Constraint("DistanceY", 0, 3, -1, 1, Q("60.736935 mm")),
])
sketch13.setExpression("Constraints[2]", "Params.sketch13_diameter")
pocket9 = body.newObject("PartDesign::Pocket", "Pocket008")
pocket9.Profile = sketch13
pocket9.Type = "ThroughAll"

# Sketch on XY plane
sketch14 = body.newObject("Sketcher::SketchObject", "Sketch013")
sketch14.AttachmentSupport = (doc.getObject("XY_Plane"), [""])
sketch14.MapMode = "FlatFace"
sketch14.AttachmentOffset = App.Placement(V(0, 0, 0.125 * 25.4), App.Rotation())
sketch14.addGeometry([
    Part.Circle(V(-203.2, 120.3, 0), V(0, 0, 1), 2.6),
    Part.Circle(V(203.2, 120.3, 0), V(0, 0, 1), 2.6),
    Part.Circle(V(203.2, -120.3, 0), V(0, 0, 1), 2.6),
    Part.Circle(V(-203.2, -120.3, 0), V(0, 0, 1), 2.6),
], False)
sketch14.addConstraint([
    Sketcher.Constraint("Equal", 0, 1),
    Sketcher.Constraint("Equal", 1, 2),
    Sketcher.Constraint("Equal", 2, 3),
    Sketcher.Constraint("Symmetric", 0, 3, 2, 3, -1, 1),
    Sketcher.Constraint("Symmetric", 1, 3, 3, 3, -1, 1),
    Sketcher.Constraint("Symmetric", 0, 3, 1, 3, -2),
    Sketcher.Constraint("Diameter", 0, Q("0.201 in")),
    Sketcher.Constraint("DistanceX", 0, 3, -1, 1, Q("8 in")),
    Sketcher.Constraint("DistanceY", 2, 3, 1, 3, Q("9.47 in")),
])
sketch14.setExpression("Constraints[6]", "Params.sketch14_diameter")
doc.recompute()
hole4 = body.newObject("PartDesign::Hole", "Hole003")
hole4.Profile = sketch14
hole4.ThreadType = "None"
hole4.setExpression("Diameter", "Params.hole4_diameter")
hole4.DepthType = "ThroughAll"

doc.recompute()
